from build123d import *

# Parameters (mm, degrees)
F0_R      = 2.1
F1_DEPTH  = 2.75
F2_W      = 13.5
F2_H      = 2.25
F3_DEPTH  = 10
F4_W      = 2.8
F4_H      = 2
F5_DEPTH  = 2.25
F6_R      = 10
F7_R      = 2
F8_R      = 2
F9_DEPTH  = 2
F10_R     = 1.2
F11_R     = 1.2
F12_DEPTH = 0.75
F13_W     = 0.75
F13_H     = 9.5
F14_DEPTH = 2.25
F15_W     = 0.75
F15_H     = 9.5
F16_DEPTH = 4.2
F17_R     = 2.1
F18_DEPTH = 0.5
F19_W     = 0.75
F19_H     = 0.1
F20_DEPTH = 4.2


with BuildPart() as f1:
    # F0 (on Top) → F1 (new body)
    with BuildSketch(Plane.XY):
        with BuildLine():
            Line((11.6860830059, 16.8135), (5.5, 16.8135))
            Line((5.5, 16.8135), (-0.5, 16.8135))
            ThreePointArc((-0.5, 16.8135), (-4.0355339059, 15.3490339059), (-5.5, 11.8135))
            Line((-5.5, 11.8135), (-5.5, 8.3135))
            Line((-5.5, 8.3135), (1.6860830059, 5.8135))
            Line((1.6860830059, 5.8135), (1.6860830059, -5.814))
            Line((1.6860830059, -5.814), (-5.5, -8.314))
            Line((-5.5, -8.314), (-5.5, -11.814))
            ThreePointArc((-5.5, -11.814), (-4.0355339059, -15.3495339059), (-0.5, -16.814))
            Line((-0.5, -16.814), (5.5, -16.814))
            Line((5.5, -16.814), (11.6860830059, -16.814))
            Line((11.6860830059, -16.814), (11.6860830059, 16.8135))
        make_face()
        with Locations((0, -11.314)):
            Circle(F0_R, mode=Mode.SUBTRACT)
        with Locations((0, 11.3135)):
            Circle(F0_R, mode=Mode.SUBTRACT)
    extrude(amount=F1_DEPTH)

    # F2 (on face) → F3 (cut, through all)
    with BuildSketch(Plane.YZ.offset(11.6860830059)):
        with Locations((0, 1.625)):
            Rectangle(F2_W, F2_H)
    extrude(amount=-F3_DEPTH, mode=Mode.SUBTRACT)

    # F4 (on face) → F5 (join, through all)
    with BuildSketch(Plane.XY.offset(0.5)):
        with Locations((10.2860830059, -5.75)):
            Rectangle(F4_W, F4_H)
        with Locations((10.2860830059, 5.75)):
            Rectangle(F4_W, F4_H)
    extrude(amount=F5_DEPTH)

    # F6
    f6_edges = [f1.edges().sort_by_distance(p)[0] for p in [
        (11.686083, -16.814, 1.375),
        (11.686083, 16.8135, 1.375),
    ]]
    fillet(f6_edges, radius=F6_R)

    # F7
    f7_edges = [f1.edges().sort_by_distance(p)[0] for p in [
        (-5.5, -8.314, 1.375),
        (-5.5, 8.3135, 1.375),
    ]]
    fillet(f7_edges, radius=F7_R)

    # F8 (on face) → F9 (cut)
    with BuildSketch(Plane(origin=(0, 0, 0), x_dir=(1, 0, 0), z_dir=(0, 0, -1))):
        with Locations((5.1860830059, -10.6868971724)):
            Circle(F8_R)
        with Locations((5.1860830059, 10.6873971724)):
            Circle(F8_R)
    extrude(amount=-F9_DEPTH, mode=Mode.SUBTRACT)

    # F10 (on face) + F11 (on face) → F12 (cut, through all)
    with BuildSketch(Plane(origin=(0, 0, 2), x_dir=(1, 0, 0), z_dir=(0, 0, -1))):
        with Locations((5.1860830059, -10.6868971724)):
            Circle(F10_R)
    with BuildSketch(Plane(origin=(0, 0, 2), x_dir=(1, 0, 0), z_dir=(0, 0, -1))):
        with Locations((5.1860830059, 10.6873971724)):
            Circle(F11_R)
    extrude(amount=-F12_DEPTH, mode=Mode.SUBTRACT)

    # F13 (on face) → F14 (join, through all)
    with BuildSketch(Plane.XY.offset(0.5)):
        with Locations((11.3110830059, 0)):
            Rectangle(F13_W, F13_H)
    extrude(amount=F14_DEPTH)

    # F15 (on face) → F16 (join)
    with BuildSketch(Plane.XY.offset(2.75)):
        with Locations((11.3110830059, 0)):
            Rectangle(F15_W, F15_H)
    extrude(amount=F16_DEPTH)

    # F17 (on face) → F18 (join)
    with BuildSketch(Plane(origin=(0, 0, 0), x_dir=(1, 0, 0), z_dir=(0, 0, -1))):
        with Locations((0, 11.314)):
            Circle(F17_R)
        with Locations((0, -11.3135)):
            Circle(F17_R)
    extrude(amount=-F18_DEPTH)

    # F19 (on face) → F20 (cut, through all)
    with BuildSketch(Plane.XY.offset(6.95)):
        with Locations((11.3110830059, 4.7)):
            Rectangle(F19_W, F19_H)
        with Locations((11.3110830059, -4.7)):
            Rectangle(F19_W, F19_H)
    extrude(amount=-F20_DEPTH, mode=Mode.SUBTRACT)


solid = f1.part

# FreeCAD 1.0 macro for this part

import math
import FreeCAD as App
import Part
import Sketcher


def edges_at(feature, points):
    """Names of the edges that pass closest to the given points."""
    edges = feature.Shape.Edges
    near = lambda p: min(range(len(edges)), key=lambda i: edges[i].distToShape(Part.Vertex(*p))[0])
    return sorted({f"Edge{near(p) + 1}" for p in points})


def add_polygon(sketch, points):
    """Adds a closed chain of lines whose ends are joined by coincident constraints."""
    first, n = sketch.GeometryCount, len(points)
    for a, b in zip(points, points[1:] + points[:1]):
        sketch.addGeometry(Part.LineSegment(App.Vector(*a, 0), App.Vector(*b, 0)), False)
    for i in range(n):
        sketch.addConstraint(Sketcher.Constraint("Coincident", first + i, 2, first + (i + 1) % n, 1))

doc = App.newDocument("Part")
body = doc.addObject("PartDesign::Body", "Body")

sketch1 = body.newObject("Sketcher::SketchObject", "Sketch")
sketch1.AttachmentSupport = (doc.getObject("XY_Plane"), [""])
sketch1.MapMode = "FlatFace"
sketch1.addGeometry([
    Part.LineSegment(App.Vector(11.7, 16.8, 0), App.Vector(-0.5, 16.8, 0)),
    Part.ArcOfCircle(Part.Circle(App.Vector(-0.5, 11.8, 0), App.Vector(0, 0, 1), 5), math.radians(90), math.radians(180)),
    Part.LineSegment(App.Vector(-5.5, 11.8, 0), App.Vector(-5.5, 8.3, 0)),
    Part.LineSegment(App.Vector(-5.5, 8.3, 0), App.Vector(1.7, 5.8, 0)),
    Part.LineSegment(App.Vector(1.7, 5.8, 0), App.Vector(1.7, -5.8, 0)),
    Part.LineSegment(App.Vector(1.7, -5.8, 0), App.Vector(-5.5, -8.3, 0)),
    Part.LineSegment(App.Vector(-5.5, -8.3, 0), App.Vector(-5.5, -11.8, 0)),
    Part.ArcOfCircle(Part.Circle(App.Vector(-0.5, -11.8, 0), App.Vector(0, 0, 1), 5), math.radians(180), math.radians(270)),
    Part.LineSegment(App.Vector(-0.5, -16.8, 0), App.Vector(11.7, -16.8, 0)),
    Part.LineSegment(App.Vector(11.7, -16.8, 0), App.Vector(11.7, 16.8, 0)),
    Part.Circle(App.Vector(0, -11.3, 0), App.Vector(0, 0, 1), 2.1),
    Part.Circle(App.Vector(0, 11.3, 0), App.Vector(0, 0, 1), 2.1),
], False)
sketch1.addConstraint([
    Sketcher.Constraint("Tangent", 0, 2, 1, 1),
    Sketcher.Constraint("Tangent", 1, 2, 2, 1),
    Sketcher.Constraint("Coincident", 2, 2, 3, 1),
    Sketcher.Constraint("Coincident", 3, 2, 4, 1),
    Sketcher.Constraint("Coincident", 4, 2, 5, 1),
    Sketcher.Constraint("Coincident", 5, 2, 6, 1),
    Sketcher.Constraint("Tangent", 6, 2, 7, 1),
    Sketcher.Constraint("Tangent", 7, 2, 8, 1),
    Sketcher.Constraint("Coincident", 8, 2, 9, 1),
    Sketcher.Constraint("Coincident", 9, 2, 0, 1),
    Sketcher.Constraint("Horizontal", 0),
    Sketcher.Constraint("Vertical", 2),
    Sketcher.Constraint("Vertical", 4),
    Sketcher.Constraint("Vertical", 6),
    Sketcher.Constraint("Horizontal", 8),
    Sketcher.Constraint("Vertical", 9),
    Sketcher.Constraint("Equal", 1, 7),
    Sketcher.Constraint("Equal", 10, 11),
    Sketcher.Constraint("PointOnObject", 10, 3, -2),
    Sketcher.Constraint("PointOnObject", 11, 3, -2),
    Sketcher.Constraint("Vertical", 1, 3, 7, 3),
    Sketcher.Constraint("Equal", 2, 6),
    Sketcher.Constraint("Equal", 3, 5),
    Sketcher.Constraint("Radius", 1, 5.0),
    Sketcher.Constraint("Diameter", 10, 4.2),
    Sketcher.Constraint("DistanceY", 2, 2, 2, 1, 3.5),
    Sketcher.Constraint("DistanceY", 2, 2, 11, 3, 3.0),
    Sketcher.Constraint("DistanceY", 3, 2, 1, 3, 6.0),
    Sketcher.Constraint("DistanceY", 10, 3, 5, 2, 3.0),
    Sketcher.Constraint("DistanceX", 4, 2, 8, 2, 10.0),
    Sketcher.Constraint("DistanceX", 1, 3, -1, 1, 0.5),
    Sketcher.Constraint("DistanceY", 4, 2, 4, 1, 11.6275),
    Sketcher.Constraint("DistanceY", 7, 3, -1, 1, 11.814),
    Sketcher.Constraint("DistanceX", 0, 2, 0, 1, 12.186083),
])
pad1 = body.newObject("PartDesign::Pad", "Pad")
pad1.Profile = sketch1
pad1.Length = 2.75

sketch2 = body.newObject("Sketcher::SketchObject", "Sketch001")
sketch2.AttachmentSupport = (doc.getObject("YZ_Plane"), [""])
sketch2.MapMode = "FlatFace"
sketch2.AttachmentOffset = App.Placement(App.Vector(0, 0, 11.686083), App.Rotation())
add_polygon(sketch2, [(-6.8, 2.8), (-6.8, 0.5), (6.8, 0.5), (6.8, 2.8)])
sketch2.addConstraint([
    Sketcher.Constraint("Vertical", 0),
    Sketcher.Constraint("Horizontal", 1),
    Sketcher.Constraint("Vertical", 2),
    Sketcher.Constraint("Horizontal", 3),
    Sketcher.Constraint("DistanceX", 1, 1, 1, 2, 13.5),
    Sketcher.Constraint("DistanceY", 0, 2, 0, 1, 2.25),
    Sketcher.Constraint("DistanceY", -1, 1, 0, 2, 0.5),
    Sketcher.Constraint("DistanceX", 0, 2, -1, 1, 6.75),
])
pocket1 = body.newObject("PartDesign::Pocket", "Pocket")
pocket1.Profile = sketch2
pocket1.Length = 10

sketch3 = body.newObject("Sketcher::SketchObject", "Sketch002")
sketch3.AttachmentSupport = (doc.getObject("XY_Plane"), [""])
sketch3.MapMode = "FlatFace"
sketch3.AttachmentOffset = App.Placement(App.Vector(0, 0, 0.5), App.Rotation())
add_polygon(sketch3, [(8.9, -4.8), (8.9, -6.8), (11.7, -6.8), (11.7, -4.8)])
add_polygon(sketch3, [(8.9, 6.8), (8.9, 4.8), (11.7, 4.8), (11.7, 6.8)])
sketch3.addConstraint([
    Sketcher.Constraint("Vertical", 0),
    Sketcher.Constraint("Horizontal", 1),
    Sketcher.Constraint("Vertical", 2),
    Sketcher.Constraint("Horizontal", 3),
    Sketcher.Constraint("Vertical", 4),
    Sketcher.Constraint("Horizontal", 5),
    Sketcher.Constraint("Vertical", 6),
    Sketcher.Constraint("Horizontal", 7),
    Sketcher.Constraint("Symmetric", 3, 2, 4, 2, -1),
    Sketcher.Constraint("Symmetric", 1, 2, 6, 2, -1),
    Sketcher.Constraint("DistanceY", 0, 2, 0, 1, 2.0),
    Sketcher.Constraint("DistanceX", 1, 1, 1, 2, 2.8),
    Sketcher.Constraint("DistanceY", 3, 2, 4, 2, 9.5),
    Sketcher.Constraint("DistanceX", -1, 1, 0, 2, 8.886083),
])
pad2 = body.newObject("PartDesign::Pad", "Pad001")
pad2.Profile = sketch3
pad2.Length = 2.25
doc.recompute()

fillet = body.newObject("PartDesign::Fillet", "Fillet")
fillet.Base = (pad2, edges_at(pad2, [(11.686, -16.814, 1.375), (11.686, 16.814, 1.375)]))
fillet.Radius = 10
doc.recompute()

fillet2 = body.newObject("PartDesign::Fillet", "Fillet001")
fillet2.Base = (fillet, edges_at(fillet, [(-5.5, -8.314, 1.375), (-5.5, 8.313, 1.375)]))
fillet2.Radius = 2

sketch4 = body.newObject("Sketcher::SketchObject", "Sketch003")
sketch4.AttachmentSupport = (doc.getObject("XY_Plane"), [""])
sketch4.MapMode = "FlatFace"
sketch4.addGeometry([
    Part.Circle(App.Vector(5.2, 10.7, 0), App.Vector(0, 0, 1), 2),
    Part.Circle(App.Vector(5.2, -10.7, 0), App.Vector(0, 0, 1), 2),
], False)
sketch4.addConstraint([
    Sketcher.Constraint("Equal", 0, 1),
    Sketcher.Constraint("Vertical", 0, 3, 1, 3),
    Sketcher.Constraint("Diameter", 0, 4.0),
    Sketcher.Constraint("DistanceX", -1, 1, 0, 3, 5.186083),
    Sketcher.Constraint("DistanceY", -1, 1, 0, 3, 10.686897),
    Sketcher.Constraint("DistanceY", 1, 3, -1, 1, 10.687397),
])
pocket2 = body.newObject("PartDesign::Pocket", "Pocket001")
pocket2.Profile = sketch4
pocket2.Length = 2
pocket2.Reversed = True

sketch5 = body.newObject("Sketcher::SketchObject", "Sketch004")
sketch5.AttachmentSupport = (doc.getObject("XY_Plane"), [""])
sketch5.MapMode = "FlatFace"
sketch5.AttachmentOffset = App.Placement(App.Vector(0, 0, 2), App.Rotation())
sketch5.addGeometry([
    Part.Circle(App.Vector(5.2, 10.7, 0), App.Vector(0, 0, 1), 1.2),
    Part.Circle(App.Vector(5.2, -10.7, 0), App.Vector(0, 0, 1), 1.2),
], False)
sketch5.addConstraint([
    Sketcher.Constraint("Equal", 0, 1),
    Sketcher.Constraint("Vertical", 0, 3, 1, 3),
    Sketcher.Constraint("Diameter", 0, 2.4),
    Sketcher.Constraint("DistanceX", -1, 1, 0, 3, 5.186083),
    Sketcher.Constraint("DistanceY", -1, 1, 0, 3, 10.686897),
    Sketcher.Constraint("DistanceY", 1, 3, -1, 1, 10.687397),
])
pocket3 = body.newObject("PartDesign::Pocket", "Pocket002")
pocket3.Profile = sketch5
pocket3.Type = "ThroughAll"
pocket3.Reversed = True

sketch6 = body.newObject("Sketcher::SketchObject", "Sketch005")
sketch6.AttachmentSupport = (doc.getObject("XY_Plane"), [""])
sketch6.MapMode = "FlatFace"
sketch6.AttachmentOffset = App.Placement(App.Vector(0, 0, 0.5), App.Rotation())
add_polygon(sketch6, [(10.9, 4.8), (10.9, -4.8), (11.7, -4.8), (11.7, 4.8)])
sketch6.addConstraint([
    Sketcher.Constraint("Vertical", 0),
    Sketcher.Constraint("Horizontal", 1),
    Sketcher.Constraint("Vertical", 2),
    Sketcher.Constraint("Horizontal", 3),
    Sketcher.Constraint("DistanceY", 0, 2, 0, 1, 9.5),
    Sketcher.Constraint("DistanceX", 1, 1, 1, 2, 0.75),
    Sketcher.Constraint("DistanceY", 0, 2, -1, 1, 4.75),
    Sketcher.Constraint("DistanceX", -1, 1, 0, 2, 10.936083),
])
pad3 = body.newObject("PartDesign::Pad", "Pad002")
pad3.Profile = sketch6
pad3.Length = 2.25

sketch7 = body.newObject("Sketcher::SketchObject", "Sketch006")
sketch7.AttachmentSupport = (doc.getObject("XY_Plane"), [""])
sketch7.MapMode = "FlatFace"
sketch7.AttachmentOffset = App.Placement(App.Vector(0, 0, 2.75), App.Rotation())
add_polygon(sketch7, [(10.9, 4.8), (10.9, -4.8), (11.7, -4.8), (11.7, 4.8)])
sketch7.addConstraint([
    Sketcher.Constraint("Vertical", 0),
    Sketcher.Constraint("Horizontal", 1),
    Sketcher.Constraint("Vertical", 2),
    Sketcher.Constraint("Horizontal", 3),
    Sketcher.Constraint("DistanceY", 0, 2, 0, 1, 9.5),
    Sketcher.Constraint("DistanceX", 1, 1, 1, 2, 0.75),
    Sketcher.Constraint("DistanceY", 0, 2, -1, 1, 4.75),
    Sketcher.Constraint("DistanceX", -1, 1, 0, 2, 10.936083),
])
pad4 = body.newObject("PartDesign::Pad", "Pad003")
pad4.Profile = sketch7
pad4.Length = 4.2

sketch8 = body.newObject("Sketcher::SketchObject", "Sketch007")
sketch8.AttachmentSupport = (doc.getObject("XY_Plane"), [""])
sketch8.MapMode = "FlatFace"
sketch8.addGeometry([
    Part.Circle(App.Vector(0, -11.3, 0), App.Vector(0, 0, 1), 2.1),
    Part.Circle(App.Vector(0, 11.3, 0), App.Vector(0, 0, 1), 2.1),
], False)
sketch8.addConstraint([
    Sketcher.Constraint("Equal", 0, 1),
    Sketcher.Constraint("PointOnObject", 0, 3, -2),
    Sketcher.Constraint("PointOnObject", 1, 3, -2),
    Sketcher.Constraint("Diameter", 0, 4.2),
    Sketcher.Constraint("DistanceY", 0, 3, -1, 1, 11.314),
    Sketcher.Constraint("DistanceY", -1, 1, 1, 3, 11.3135),
])
pad5 = body.newObject("PartDesign::Pad", "Pad004")
pad5.Profile = sketch8
pad5.Length = 0.5

sketch9 = body.newObject("Sketcher::SketchObject", "Sketch008")
sketch9.AttachmentSupport = (doc.getObject("XY_Plane"), [""])
sketch9.MapMode = "FlatFace"
sketch9.AttachmentOffset = App.Placement(App.Vector(0, 0, 6.95), App.Rotation())
add_polygon(sketch9, [(10.94, 4.75), (10.94, 4.65), (11.69, 4.65), (11.69, 4.75)])
add_polygon(sketch9, [(10.94, -4.65), (10.94, -4.75), (11.69, -4.75), (11.69, -4.65)])
sketch9.addConstraint([
    Sketcher.Constraint("Vertical", 0),
    Sketcher.Constraint("Horizontal", 1),
    Sketcher.Constraint("Vertical", 2),
    Sketcher.Constraint("Horizontal", 3),
    Sketcher.Constraint("Vertical", 4),
    Sketcher.Constraint("Horizontal", 5),
    Sketcher.Constraint("Vertical", 6),
    Sketcher.Constraint("Horizontal", 7),
    Sketcher.Constraint("Symmetric", 3, 2, 4, 2, -1),
    Sketcher.Constraint("Symmetric", 1, 2, 6, 2, -1),
    Sketcher.Constraint("DistanceY", 0, 2, 0, 1, 0.1),
    Sketcher.Constraint("DistanceX", 1, 1, 1, 2, 0.75),
    Sketcher.Constraint("DistanceY", 4, 2, 0, 2, 9.4),
    Sketcher.Constraint("DistanceX", -1, 1, 0, 2, 10.936083),
])
pocket4 = body.newObject("PartDesign::Pocket", "Pocket003")
pocket4.Profile = sketch9
pocket4.Length = 4.2

doc.recompute()
